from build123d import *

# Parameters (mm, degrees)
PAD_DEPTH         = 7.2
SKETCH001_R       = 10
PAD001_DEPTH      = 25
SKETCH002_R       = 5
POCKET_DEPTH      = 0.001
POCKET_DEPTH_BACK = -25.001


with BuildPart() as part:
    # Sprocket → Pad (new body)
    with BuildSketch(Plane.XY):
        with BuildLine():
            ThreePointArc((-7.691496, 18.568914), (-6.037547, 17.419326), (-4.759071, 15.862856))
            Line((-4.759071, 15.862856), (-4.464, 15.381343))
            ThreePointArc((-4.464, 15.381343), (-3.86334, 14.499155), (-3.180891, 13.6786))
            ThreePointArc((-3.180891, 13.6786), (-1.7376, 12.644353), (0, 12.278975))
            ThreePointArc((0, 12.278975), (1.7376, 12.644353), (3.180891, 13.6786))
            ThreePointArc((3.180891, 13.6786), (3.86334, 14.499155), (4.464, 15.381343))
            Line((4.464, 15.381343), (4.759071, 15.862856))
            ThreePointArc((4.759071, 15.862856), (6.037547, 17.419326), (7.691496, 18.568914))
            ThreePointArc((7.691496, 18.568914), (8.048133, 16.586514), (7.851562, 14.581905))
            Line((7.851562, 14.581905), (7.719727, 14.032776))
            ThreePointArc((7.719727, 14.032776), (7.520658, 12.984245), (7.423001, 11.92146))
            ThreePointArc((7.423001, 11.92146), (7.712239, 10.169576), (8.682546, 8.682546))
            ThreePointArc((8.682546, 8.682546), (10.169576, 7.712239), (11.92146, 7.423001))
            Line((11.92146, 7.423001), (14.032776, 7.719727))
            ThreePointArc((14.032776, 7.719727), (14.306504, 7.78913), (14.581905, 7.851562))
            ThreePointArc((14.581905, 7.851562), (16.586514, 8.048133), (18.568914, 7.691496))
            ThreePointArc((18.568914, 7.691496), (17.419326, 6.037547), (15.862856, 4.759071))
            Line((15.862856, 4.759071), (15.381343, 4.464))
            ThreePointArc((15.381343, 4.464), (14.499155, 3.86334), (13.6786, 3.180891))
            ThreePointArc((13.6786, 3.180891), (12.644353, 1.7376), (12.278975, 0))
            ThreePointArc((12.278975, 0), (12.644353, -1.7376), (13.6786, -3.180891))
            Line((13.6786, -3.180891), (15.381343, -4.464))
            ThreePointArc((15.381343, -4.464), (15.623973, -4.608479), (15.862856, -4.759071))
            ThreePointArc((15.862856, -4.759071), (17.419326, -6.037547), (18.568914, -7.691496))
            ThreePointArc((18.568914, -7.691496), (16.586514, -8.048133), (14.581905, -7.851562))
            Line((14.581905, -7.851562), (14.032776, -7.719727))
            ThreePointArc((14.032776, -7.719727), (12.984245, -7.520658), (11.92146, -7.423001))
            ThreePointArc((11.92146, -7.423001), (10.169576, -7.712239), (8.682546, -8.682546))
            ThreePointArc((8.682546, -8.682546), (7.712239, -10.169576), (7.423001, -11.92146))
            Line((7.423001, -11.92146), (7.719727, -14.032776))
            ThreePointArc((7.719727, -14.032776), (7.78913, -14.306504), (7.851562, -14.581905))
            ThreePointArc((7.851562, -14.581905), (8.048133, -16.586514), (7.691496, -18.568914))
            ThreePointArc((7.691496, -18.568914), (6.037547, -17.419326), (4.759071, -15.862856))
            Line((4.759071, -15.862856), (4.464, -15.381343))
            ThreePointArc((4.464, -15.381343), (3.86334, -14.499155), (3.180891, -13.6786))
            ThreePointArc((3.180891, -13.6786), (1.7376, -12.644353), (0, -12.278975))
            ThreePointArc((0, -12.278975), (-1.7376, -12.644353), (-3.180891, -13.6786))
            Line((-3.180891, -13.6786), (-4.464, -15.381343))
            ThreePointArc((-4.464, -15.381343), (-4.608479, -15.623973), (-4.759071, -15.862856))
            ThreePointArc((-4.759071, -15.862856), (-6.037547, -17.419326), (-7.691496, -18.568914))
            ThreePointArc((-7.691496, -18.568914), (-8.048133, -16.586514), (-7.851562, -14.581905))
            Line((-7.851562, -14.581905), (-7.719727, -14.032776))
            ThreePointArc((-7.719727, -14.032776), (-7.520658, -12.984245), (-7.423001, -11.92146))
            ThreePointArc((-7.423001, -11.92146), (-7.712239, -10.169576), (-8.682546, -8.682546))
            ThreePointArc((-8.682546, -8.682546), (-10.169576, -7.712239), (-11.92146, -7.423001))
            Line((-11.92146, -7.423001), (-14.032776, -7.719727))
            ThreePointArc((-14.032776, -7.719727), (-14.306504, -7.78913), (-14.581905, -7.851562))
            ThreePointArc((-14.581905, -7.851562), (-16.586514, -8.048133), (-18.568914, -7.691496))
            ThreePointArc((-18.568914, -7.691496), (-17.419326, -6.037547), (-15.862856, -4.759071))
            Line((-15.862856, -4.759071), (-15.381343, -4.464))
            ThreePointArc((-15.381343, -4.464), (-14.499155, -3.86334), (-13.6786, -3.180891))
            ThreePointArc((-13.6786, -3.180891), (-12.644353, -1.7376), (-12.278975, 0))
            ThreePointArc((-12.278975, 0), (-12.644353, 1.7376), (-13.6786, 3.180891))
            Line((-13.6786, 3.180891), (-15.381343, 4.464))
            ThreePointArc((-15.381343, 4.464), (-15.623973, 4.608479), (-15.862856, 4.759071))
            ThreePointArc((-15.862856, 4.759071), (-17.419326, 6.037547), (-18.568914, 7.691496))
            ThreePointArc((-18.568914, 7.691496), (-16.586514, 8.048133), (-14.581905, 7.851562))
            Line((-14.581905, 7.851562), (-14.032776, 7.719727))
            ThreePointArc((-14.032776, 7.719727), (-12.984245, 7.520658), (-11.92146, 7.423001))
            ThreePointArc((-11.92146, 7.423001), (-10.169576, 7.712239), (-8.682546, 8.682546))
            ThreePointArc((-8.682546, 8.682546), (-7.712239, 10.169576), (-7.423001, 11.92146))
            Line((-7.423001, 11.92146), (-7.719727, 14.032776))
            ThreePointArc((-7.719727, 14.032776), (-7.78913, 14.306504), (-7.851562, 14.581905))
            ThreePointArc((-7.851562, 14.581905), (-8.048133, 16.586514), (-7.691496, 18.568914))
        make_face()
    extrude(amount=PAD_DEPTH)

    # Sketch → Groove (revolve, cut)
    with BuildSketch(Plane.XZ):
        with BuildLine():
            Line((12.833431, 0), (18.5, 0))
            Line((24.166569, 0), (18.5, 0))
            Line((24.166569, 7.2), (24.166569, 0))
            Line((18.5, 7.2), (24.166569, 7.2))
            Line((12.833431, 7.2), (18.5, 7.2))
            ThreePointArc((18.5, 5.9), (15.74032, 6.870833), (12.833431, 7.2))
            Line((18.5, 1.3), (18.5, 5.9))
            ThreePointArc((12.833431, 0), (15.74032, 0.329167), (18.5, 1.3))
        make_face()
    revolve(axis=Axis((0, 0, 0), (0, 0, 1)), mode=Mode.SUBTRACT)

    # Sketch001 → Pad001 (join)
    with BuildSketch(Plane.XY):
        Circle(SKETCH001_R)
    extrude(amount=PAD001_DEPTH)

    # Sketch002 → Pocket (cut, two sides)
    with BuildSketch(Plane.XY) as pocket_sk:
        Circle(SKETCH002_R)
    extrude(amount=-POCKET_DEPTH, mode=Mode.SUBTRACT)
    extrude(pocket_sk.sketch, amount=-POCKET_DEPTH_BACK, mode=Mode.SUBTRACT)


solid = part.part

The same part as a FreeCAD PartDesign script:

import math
import FreeCAD as App
import Part
import Sketcher

doc = App.newDocument("Part")
params = doc.addObject("Spreadsheet::Sheet", "Params")
for row, (alias, value) in enumerate([
    ("pad1_length", "7.2 mm"),
    ("sketch2_height", "7.2 mm"),
    ("sketch2_height2", "4.6 mm"),
    ("groove_angle", "360 deg"),
    ("sketch3_diameter", "20 mm"),
    ("pad2_length", "25 mm"),
    ("sketch4_diameter", "10 mm"),
], start=1):
    params.set(f"A{row}", alias)
    params.set(f"B{row}", "=" + value)
    params.setAlias(f"B{row}", alias)

body = doc.addObject("PartDesign::Body", "Body")

sketch1 = body.newObject("Sketcher::SketchObject", "Sketch")
sketch1.AttachmentSupport = (doc.getObject("XY_Plane"), [""])
sketch1.MapMode = "FlatFace"
sketch1.addGeometry([
    Part.ArcOfCircle(Part.Circle(App.Vector(-11.007099, 12.034061, 0), App.Vector(0, 0, 1), 7.327859), math.radians(31.499988), math.radians(63.098027)),
    Part.ArcOfCircle(Part.Circle(App.Vector(-0.726167, 16.29256, 0), App.Vector(0, 0, 1), 7.327864), math.radians(161.901981), math.radians(193.499994)),
    Part.ArcOfCircle(Part.Circle(App.Vector(3.027006, 16.903244, 0), App.Vector(0, 0, 1), 11.123482), math.radians(-167.954515), math.radians(-165.045329)),
    Part.LineSegment(App.Vector(-7.719727, 14.032776, 0), App.Vector(-7.423001, 11.92146, 0)),
    Part.ArcOfCircle(Part.Circle(App.Vector(-11.733276, 11.733272, 0), App.Vector(0, 0, 1), 4.314381), math.radians(-44.999965), math.radians(2.499958)),
    Part.ArcOfCircle(Part.Circle(App.Vector(-11.733272, 11.733276, 0), App.Vector(0, 0, 1), 4.314381), math.radians(-92.499958), math.radians(-45.000035)),
    Part.ArcOfCircle(Part.Circle(App.Vector(-11.436285, 18.534963, 0), App.Vector(0, 0, 1), 11.122549), math.radians(-103.499912), math.radians(-92.500082)),
    Part.LineSegment(App.Vector(-14.032776, 7.719727, 0), App.Vector(-14.581905, 7.851562, 0)),
    Part.ArcOfCircle(Part.Circle(App.Vector(-16.29256, 0.726167, 0), App.Vector(0, 0, 1), 7.327864), math.radians(76.500006), math.radians(108.098019)),
    Part.ArcOfCircle(Part.Circle(App.Vector(-12.034061, 11.007099, 0), App.Vector(0, 0, 1), 7.327859), math.radians(-153.098027), math.radians(-121.499988)),
    Part.ArcOfCircle(Part.Circle(App.Vector(-9.812852, 14.091384, 0), App.Vector(0, 0, 1), 11.121808), math.radians(-122.954762), math.radians(-120.045144)),
    Part.LineSegment(App.Vector(-15.381343, 4.464, 0), App.Vector(-13.6786, 3.180891, 0)),
    Part.ArcOfCircle(Part.Circle(App.Vector(-16.593353, -0.000001, 0), App.Vector(0, 0, 1), 4.314378), math.radians(0.000011), math.radians(47.499973)),
    Part.ArcOfCircle(Part.Circle(App.Vector(-16.593353, 0.000001, 0), App.Vector(0, 0, 1), 4.314378), math.radians(-47.499973), math.radians(-0.000011)),
    Part.ArcOfCircle(Part.Circle(App.Vector(-21.192716, 5.019314, 0), App.Vector(0, 0, 1), 11.122288), math.radians(-58.500042), math.radians(-47.499953)),
    Part.LineSegment(App.Vector(-15.381343, -4.464, 0), App.Vector(-15.862856, -4.759071, 0)),
    Part.ArcOfCircle(Part.Circle(App.Vector(-12.034061, -11.007099, 0), App.Vector(0, 0, 1), 7.327859), math.radians(121.499988), math.radians(153.098027)),
    Part.ArcOfCircle(Part.Circle(App.Vector(-16.29256, -0.726167, 0), App.Vector(0, 0, 1), 7.327864), math.radians(-108.098019), math.radians(-76.500006)),
    Part.ArcOfCircle(Part.Circle(App.Vector(-16.903244, 3.027006, 0), App.Vector(0, 0, 1), 11.123482), math.radians(-77.954515), math.radians(-75.045329)),
    Part.LineSegment(App.Vector(-14.032776, -7.719727, 0), App.Vector(-11.92146, -7.423001, 0)),
    Part.ArcOfCircle(Part.Circle(App.Vector(-11.733272, -11.733276, 0), App.Vector(0, 0, 1), 4.314381), math.radians(45.000035), math.radians(92.499958)),
    Part.ArcOfCircle(Part.Circle(App.Vector(-11.733276, -11.733272, 0), App.Vector(0, 0, 1), 4.314381), math.radians(-2.499958), math.radians(44.999965)),
    Part.ArcOfCircle(Part.Circle(App.Vector(-18.534963, -11.436285, 0), App.Vector(0, 0, 1), 11.122549), math.radians(-13.499912), math.radians(-2.500082)),
    Part.LineSegment(App.Vector(-7.719727, -14.032776, 0), App.Vector(-7.851562, -14.581905, 0)),
    Part.ArcOfCircle(Part.Circle(App.Vector(-0.726167, -16.29256, 0), App.Vector(0, 0, 1), 7.327864), math.radians(166.500006), math.radians(198.098019)),
    Part.ArcOfCircle(Part.Circle(App.Vector(-11.007099, -12.034061, 0), App.Vector(0, 0, 1), 7.327859), math.radians(-63.098027), math.radians(-31.499988)),
    Part.ArcOfCircle(Part.Circle(App.Vector(-14.091384, -9.812852, 0), App.Vector(0, 0, 1), 11.121808), math.radians(-32.954762), math.radians(-30.045144)),
    Part.LineSegment(App.Vector(-4.464, -15.381343, 0), App.Vector(-3.180891, -13.6786, 0)),
    Part.ArcOfCircle(Part.Circle(App.Vector(0.000001, -16.593353, 0), App.Vector(0, 0, 1), 4.314378), math.radians(90.000011), math.radians(137.499973)),
    Part.ArcOfCircle(Part.Circle(App.Vector(-0.000001, -16.593353, 0), App.Vector(0, 0, 1), 4.314378), math.radians(42.500027), math.radians(89.999989)),
    Part.ArcOfCircle(Part.Circle(App.Vector(-5.019314, -21.192716, 0), App.Vector(0, 0, 1), 11.122288), math.radians(31.499958), math.radians(42.500047)),
    Part.LineSegment(App.Vector(4.464, -15.381343, 0), App.Vector(4.759071, -15.862856, 0)),
    Part.ArcOfCircle(Part.Circle(App.Vector(11.007099, -12.034061, 0), App.Vector(0, 0, 1), 7.327859), math.radians(-148.500012), math.radians(-116.901973)),
    Part.ArcOfCircle(Part.Circle(App.Vector(0.726167, -16.29256, 0), App.Vector(0, 0, 1), 7.327864), math.radians(-18.098019), math.radians(13.499994)),
    Part.ArcOfCircle(Part.Circle(App.Vector(-3.027006, -16.903244, 0), App.Vector(0, 0, 1), 11.123482), math.radians(12.045485), math.radians(14.954671)),
    Part.LineSegment(App.Vector(7.719727, -14.032776, 0), App.Vector(7.423001, -11.92146, 0)),
    Part.ArcOfCircle(Part.Circle(App.Vector(11.733276, -11.733272, 0), App.Vector(0, 0, 1), 4.314381), math.radians(135.000035), math.radians(182.499958)),
    Part.ArcOfCircle(Part.Circle(App.Vector(11.733272, -11.733276, 0), App.Vector(0, 0, 1), 4.314381), math.radians(87.500042), math.radians(134.999965)),
    Part.ArcOfCircle(Part.Circle(App.Vector(11.436285, -18.534963, 0), App.Vector(0, 0, 1), 11.122549), math.radians(76.500088), math.radians(87.499918)),
    Part.LineSegment(App.Vector(14.032776, -7.719727, 0), App.Vector(14.581905, -7.851562, 0)),
    Part.ArcOfCircle(Part.Circle(App.Vector(16.29256, -0.726167, 0), App.Vector(0, 0, 1), 7.327864), math.radians(-103.499994), math.radians(-71.901981)),
    Part.ArcOfCircle(Part.Circle(App.Vector(12.034061, -11.007099, 0), App.Vector(0, 0, 1), 7.327859), math.radians(26.901973), math.radians(58.500012)),
    Part.ArcOfCircle(Part.Circle(App.Vector(9.812852, -14.091384, 0), App.Vector(0, 0, 1), 11.121808), math.radians(57.045238), math.radians(59.954856)),
    Part.LineSegment(App.Vector(15.381343, -4.464, 0), App.Vector(13.6786, -3.180891, 0)),
    Part.ArcOfCircle(Part.Circle(App.Vector(16.593353, 0.000001, 0), App.Vector(0, 0, 1), 4.314378), math.radians(-179.999989), math.radians(-132.500027)),
    Part.ArcOfCircle(Part.Circle(App.Vector(16.593353, -0.000001, 0), App.Vector(0, 0, 1), 4.314378), math.radians(132.500027), math.radians(179.999989)),
    Part.ArcOfCircle(Part.Circle(App.Vector(21.192716, -5.019314, 0), App.Vector(0, 0, 1), 11.122288), math.radians(121.499958), math.radians(132.500047)),
    Part.LineSegment(App.Vector(15.381343, 4.464, 0), App.Vector(15.862856, 4.759071, 0)),
    Part.ArcOfCircle(Part.Circle(App.Vector(12.034061, 11.007099, 0), App.Vector(0, 0, 1), 7.327859), math.radians(-58.500012), math.radians(-26.901973)),
    Part.ArcOfCircle(Part.Circle(App.Vector(16.29256, 0.726167, 0), App.Vector(0, 0, 1), 7.327864), math.radians(71.901981), math.radians(103.499994)),
    Part.ArcOfCircle(Part.Circle(App.Vector(16.903244, -3.027006, 0), App.Vector(0, 0, 1), 11.123482), math.radians(102.045485), math.radians(104.954671)),
    Part.LineSegment(App.Vector(14.032776, 7.719727, 0), App.Vector(11.92146, 7.423001, 0)),
    Part.ArcOfCircle(Part.Circle(App.Vector(11.733272, 11.733276, 0), App.Vector(0, 0, 1), 4.314381), math.radians(-134.999965), math.radians(-87.500042)),
    Part.ArcOfCircle(Part.Circle(App.Vector(11.733276, 11.733272, 0), App.Vector(0, 0, 1), 4.314381), math.radians(177.500042), math.radians(224.999965)),
    Part.ArcOfCircle(Part.Circle(App.Vector(18.534963, 11.436285, 0), App.Vector(0, 0, 1), 11.122549), math.radians(166.500088), math.radians(177.499918)),
    Part.LineSegment(App.Vector(7.719727, 14.032776, 0), App.Vector(7.851562, 14.581905, 0)),
    Part.ArcOfCircle(Part.Circle(App.Vector(0.726167, 16.29256, 0), App.Vector(0, 0, 1), 7.327864), math.radians(-13.499994), math.radians(18.098019)),
    Part.ArcOfCircle(Part.Circle(App.Vector(11.007099, 12.034061, 0), App.Vector(0, 0, 1), 7.327859), math.radians(116.901973), math.radians(148.500012)),
    Part.LineSegment(App.Vector(4.759071, 15.862856, 0), App.Vector(4.464, 15.381343, 0)),
    Part.ArcOfCircle(Part.Circle(App.Vector(-5.019314, 21.192716, 0), App.Vector(0, 0, 1), 11.122288), math.radians(-42.500047), math.radians(-31.499958)),
    Part.ArcOfCircle(Part.Circle(App.Vector(-0.000001, 16.593353, 0), App.Vector(0, 0, 1), 4.314378), math.radians(-89.999989), math.radians(-42.500027)),
    Part.ArcOfCircle(Part.Circle(App.Vector(0.000001, 16.593353, 0), App.Vector(0, 0, 1), 4.314378), math.radians(-137.499973), math.radians(-90.000011)),
    Part.ArcOfCircle(Part.Circle(App.Vector(5.019314, 21.192716, 0), App.Vector(0, 0, 1), 11.122288), math.radians(-148.500042), math.radians(-137.499953)),
    Part.LineSegment(App.Vector(-4.464, 15.381343, 0), App.Vector(-4.759071, 15.862856, 0)),
], False)
sketch1.addConstraint([
    Sketcher.Constraint("Coincident", 0, 2, 1, 1),
    Sketcher.Constraint("Coincident", 1, 2, 2, 1),
    Sketcher.Constraint("Coincident", 2, 2, 3, 1),
    Sketcher.Constraint("Coincident", 3, 2, 4, 2),
    Sketcher.Constraint("Coincident", 4, 1, 5, 2),
    Sketcher.Constraint("Coincident", 5, 1, 6, 2),
    Sketcher.Constraint("Coincident", 6, 1, 7, 1),
    Sketcher.Constraint("Coincident", 7, 2, 8, 1),
    Sketcher.Constraint("Coincident", 8, 2, 9, 1),
    Sketcher.Constraint("Coincident", 9, 2, 10, 1),
    Sketcher.Constraint("Coincident", 10, 2, 11, 1),
    Sketcher.Constraint("Coincident", 11, 2, 12, 2),
    Sketcher.Constraint("Coincident", 12, 1, 13, 2),
    Sketcher.Constraint("Coincident", 13, 1, 14, 2),
    Sketcher.Constraint("Coincident", 14, 1, 15, 1),
    Sketcher.Constraint("Coincident", 15, 2, 16, 1),
    Sketcher.Constraint("Coincident", 16, 2, 17, 1),
    Sketcher.Constraint("Coincident", 17, 2, 18, 1),
    Sketcher.Constraint("Coincident", 18, 2, 19, 1),
    Sketcher.Constraint("Coincident", 19, 2, 20, 2),
    Sketcher.Constraint("Coincident", 20, 1, 21, 2),
    Sketcher.Constraint("Coincident", 21, 1, 22, 2),
    Sketcher.Constraint("Coincident", 22, 1, 23, 1),
    Sketcher.Constraint("Coincident", 23, 2, 24, 1),
    Sketcher.Constraint("Coincident", 24, 2, 25, 1),
    Sketcher.Constraint("Coincident", 25, 2, 26, 1),
    Sketcher.Constraint("Coincident", 26, 2, 27, 1),
    Sketcher.Constraint("Coincident", 27, 2, 28, 2),
    Sketcher.Constraint("Coincident", 28, 1, 29, 2),
    Sketcher.Constraint("Coincident", 29, 1, 30, 2),
    Sketcher.Constraint("Coincident", 30, 1, 31, 1),
    Sketcher.Constraint("Coincident", 31, 2, 32, 1),
    Sketcher.Constraint("Coincident", 32, 2, 33, 1),
    Sketcher.Constraint("Coincident", 33, 2, 34, 1),
    Sketcher.Constraint("Coincident", 34, 2, 35, 1),
    Sketcher.Constraint("Coincident", 35, 2, 36, 2),
    Sketcher.Constraint("Coincident", 36, 1, 37, 2),
    Sketcher.Constraint("Coincident", 37, 1, 38, 2),
    Sketcher.Constraint("Coincident", 38, 1, 39, 1),
    Sketcher.Constraint("Coincident", 39, 2, 40, 1),
    Sketcher.Constraint("Coincident", 40, 2, 41, 1),
    Sketcher.Constraint("Coincident", 41, 2, 42, 1),
    Sketcher.Constraint("Coincident", 42, 2, 43, 1),
    Sketcher.Constraint("Coincident", 43, 2, 44, 2),
    Sketcher.Constraint("Coincident", 44, 1, 45, 2),
    Sketcher.Constraint("Coincident", 45, 1, 46, 2),
    Sketcher.Constraint("Coincident", 46, 1, 47, 1),
    Sketcher.Constraint("Coincident", 47, 2, 48, 1),
    Sketcher.Constraint("Coincident", 48, 2, 49, 1),
    Sketcher.Constraint("Coincident", 49, 2, 50, 1),
    Sketcher.Constraint("Coincident", 50, 2, 51, 1),
    Sketcher.Constraint("Coincident", 51, 2, 52, 2),
    Sketcher.Constraint("Coincident", 52, 1, 53, 2),
    Sketcher.Constraint("Coincident", 53, 1, 54, 2),
    Sketcher.Constraint("Coincident", 54, 1, 55, 1),
    Sketcher.Constraint("Coincident", 55, 2, 56, 1),
    Sketcher.Constraint("Coincident", 56, 2, 57, 1),
    Sketcher.Constraint("Coincident", 57, 2, 58, 1),
    Sketcher.Constraint("Coincident", 58, 2, 59, 2),
    Sketcher.Constraint("Coincident", 59, 1, 60, 2),
    Sketcher.Constraint("Coincident", 60, 1, 61, 2),
    Sketcher.Constraint("Coincident", 61, 1, 62, 2),
    Sketcher.Constraint("Coincident", 62, 1, 63, 1),
    Sketcher.Constraint("Coincident", 63, 2, 0, 1),
    Sketcher.Constraint("Coincident", 5, 3, 4, 3),
    Sketcher.Constraint("Coincident", 13, 3, 12, 3),
    Sketcher.Constraint("Coincident", 21, 3, 20, 3),
    Sketcher.Constraint("Coincident", 29, 3, 28, 3),
    Sketcher.Constraint("Coincident", 37, 3, 36, 3),
    Sketcher.Constraint("Coincident", 45, 3, 44, 3),
    Sketcher.Constraint("Coincident", 53, 3, 52, 3),
    Sketcher.Constraint("Coincident", 61, 3, 60, 3),
    Sketcher.Constraint("PointOnObject", 12, 3, -1),
    Sketcher.Constraint("PointOnObject", 28, 3, -2),
    Sketcher.Constraint("PointOnObject", 44, 3, -1),
    Sketcher.Constraint("PointOnObject", 60, 3, -2),
    Sketcher.Constraint("PointOnObject", 12, 1, -1),
    Sketcher.Constraint("PointOnObject", 28, 1, -2),
    Sketcher.Constraint("PointOnObject", 44, 1, -1),
    Sketcher.Constraint("PointOnObject", 60, 1, -2),
    Sketcher.Constraint("Radius", 0, 7.327859),
    Sketcher.Constraint("Radius", 4, 4.314381),
    Sketcher.Constraint("Radius", 6, 11.122549),
    Sketcher.Constraint("Radius", 9, 7.327859),
    Sketcher.Constraint("Radius", 10, 11.121808),
    Sketcher.Constraint("Radius", 12, 4.314378),
    Sketcher.Constraint("Radius", 14, 11.122288),
    Sketcher.Constraint("Radius", 16, 7.327859),
    Sketcher.Constraint("Radius", 20, 4.314381),
    Sketcher.Constraint("Radius", 22, 11.122549),
    Sketcher.Constraint("Radius", 25, 7.327859),
    Sketcher.Constraint("Radius", 26, 11.121808),
    Sketcher.Constraint("Radius", 28, 4.314378),
    Sketcher.Constraint("Radius", 30, 11.122288),
    Sketcher.Constraint("Radius", 32, 7.327859),
    Sketcher.Constraint("Radius", 36, 4.314381),
    Sketcher.Constraint("Radius", 38, 11.122549),
    Sketcher.Constraint("Radius", 41, 7.327859),
    Sketcher.Constraint("Radius", 42, 11.121808),
    Sketcher.Constraint("Radius", 44, 4.314378),
    Sketcher.Constraint("Radius", 46, 11.122288),
    Sketcher.Constraint("Radius", 48, 7.327859),
    Sketcher.Constraint("Radius", 52, 4.314381),
    Sketcher.Constraint("Radius", 54, 11.122549),
    Sketcher.Constraint("Radius", 57, 7.327859),
    Sketcher.Constraint("Radius", 59, 11.122288),
    Sketcher.Constraint("Radius", 60, 4.314378),
    Sketcher.Constraint("Radius", 62, 11.122288),
    Sketcher.Constraint("DistanceX", 3, 2, -1, 1, 7.423001),
    Sketcher.Constraint("DistanceY", -1, 1, 5, 1, 7.423001),
    Sketcher.Constraint("DistanceY", -1, 1, 10, 2, 4.464),
    Sketcher.Constraint("DistanceY", 14, 1, -1, 1, 4.464),
    Sketcher.Constraint("DistanceY", 19, 2, -1, 1, 7.423001),
    Sketcher.Constraint("DistanceX", 21, 1, -1, 1, 7.423001),
    Sketcher.Constraint("DistanceX", 26, 2, -1, 1, 4.464),
    Sketcher.Constraint("DistanceX", -1, 1, 30, 1, 4.464),
    Sketcher.Constraint("DistanceX", -1, 1, 35, 2, 7.423001),
    Sketcher.Constraint("DistanceY", 37, 1, -1, 1, 7.423001),
    Sketcher.Constraint("DistanceY", 42, 2, -1, 1, 4.464),
    Sketcher.Constraint("DistanceY", -1, 1, 46, 1, 4.464),
    Sketcher.Constraint("DistanceY", -1, 1, 51, 2, 7.423001),
    Sketcher.Constraint("DistanceX", -1, 1, 53, 1, 7.423001),
    Sketcher.Constraint("DistanceX", -1, 1, 58, 2, 4.464),
    Sketcher.Constraint("DistanceX", 62, 1, -1, 1, 4.464),
    Sketcher.Constraint("Radius", 1, 7.327864),
    Sketcher.Constraint("Radius", 2, 11.123482),
    Sketcher.Constraint("Radius", 8, 7.327864),
    Sketcher.Constraint("Radius", 17, 7.327864),
    Sketcher.Constraint("Radius", 18, 11.123482),
    Sketcher.Constraint("Radius", 24, 7.327864),
    Sketcher.Constraint("Radius", 33, 7.327864),
    Sketcher.Constraint("Radius", 34, 11.123482),
    Sketcher.Constraint("Radius", 40, 7.327864),
    Sketcher.Constraint("Radius", 49, 7.327864),
    Sketcher.Constraint("Radius", 50, 11.123482),
    Sketcher.Constraint("Radius", 56, 7.327864),
    Sketcher.Constraint("DistanceX", 0, 3, -1, 1, 11.007099),
    Sketcher.Constraint("DistanceY", -1, 1, 9, 3, 11.007099),
    Sketcher.Constraint("DistanceY", 16, 3, -1, 1, 11.007099),
    Sketcher.Constraint("DistanceX", 25, 3, -1, 1, 11.007099),
    Sketcher.Constraint("DistanceX", -1, 1, 32, 3, 11.007099),
    Sketcher.Constraint("DistanceY", 41, 3, -1, 1, 11.007099),
    Sketcher.Constraint("DistanceY", -1, 1, 48, 3, 11.007099),
    Sketcher.Constraint("DistanceX", -1, 1, 57, 3, 11.007099),
    Sketcher.Constraint("DistanceX", 11, 2, -1, 1, 13.6786),
    Sketcher.Constraint("DistanceX", 13, 1, -1, 1, 13.6786),
    Sketcher.Constraint("DistanceY", 27, 2, -1, 1, 13.6786),
    Sketcher.Constraint("DistanceY", 29, 1, -1, 1, 13.6786),
    Sketcher.Constraint("DistanceX", -1, 1, 43, 2, 13.6786),
    Sketcher.Constraint("DistanceX", -1, 1, 45, 1, 13.6786),
    Sketcher.Constraint("DistanceY", -1, 1, 59, 1, 13.6786),
    Sketcher.Constraint("DistanceY", -1, 1, 61, 1, 13.6786),
    Sketcher.Constraint("Distance", 15, 0.564731),
    Sketcher.Constraint("Distance", 31, 0.564731),
    Sketcher.Constraint("Distance", 47, 0.564731),
    Sketcher.Constraint("Distance", 58, 0.564731),
    Sketcher.Constraint("Distance", 63, 0.564731),
    Sketcher.Constraint("DistanceY", -1, 1, 0, 3, 12.034061),
    Sketcher.Constraint("DistanceY", -1, 1, 1, 3, 16.29256),
    Sketcher.Constraint("DistanceX", 8, 3, -1, 1, 16.29256),
    Sketcher.Constraint("DistanceX", 9, 3, -1, 1, 12.034061),
    Sketcher.Constraint("DistanceX", 10, 3, -1, 1, 9.812852),
    Sketcher.Constraint("DistanceX", 16, 3, -1, 1, 12.034061),
    Sketcher.Constraint("DistanceX", 17, 3, -1, 1, 16.29256),
    Sketcher.Constraint("DistanceY", 24, 3, -1, 1, 16.29256),
    Sketcher.Constraint("DistanceY", 25, 3, -1, 1, 12.034061),
    Sketcher.Constraint("DistanceY", 26, 3, -1, 1, 9.812852),
    Sketcher.Constraint("DistanceY", 32, 3, -1, 1, 12.034061),
    Sketcher.Constraint("DistanceY", 33, 3, -1, 1, 16.29256),
    Sketcher.Constraint("DistanceX", -1, 1, 40, 3, 16.29256),
    Sketcher.Constraint("DistanceX", -1, 1, 41, 3, 12.034061),
    Sketcher.Constraint("DistanceX", -1, 1, 42, 3, 9.812852),
    Sketcher.Constraint("DistanceX", -1, 1, 48, 3, 12.034061),
    Sketcher.Constraint("DistanceX", -1, 1, 49, 3, 16.29256),
    Sketcher.Constraint("DistanceY", -1, 1, 56, 3, 16.29256),
    Sketcher.Constraint("DistanceY", -1, 1, 57, 3, 12.034061),
    Sketcher.Constraint("DistanceX", 1, 2, -1, 1, 7.851562),
    Sketcher.Constraint("DistanceY", -1, 1, 3, 2, 11.92146),
    Sketcher.Constraint("DistanceX", 5, 1, -1, 1, 11.92146),
    Sketcher.Constraint("DistanceY", -1, 1, 9, 2, 4.759071),
    Sketcher.Constraint("DistanceY", -1, 1, 11, 2, 3.180891),
    Sketcher.Constraint("DistanceY", 15, 2, -1, 1, 4.759071),
    Sketcher.Constraint("DistanceY", 17, 2, -1, 1, 7.851562),
    Sketcher.Constraint("DistanceX", 19, 2, -1, 1, 11.92146),
    Sketcher.Constraint("DistanceY", 21, 1, -1, 1, 11.92146),
    Sketcher.Constraint("DistanceX", 25, 2, -1, 1, 4.759071),
    Sketcher.Constraint("DistanceX", 27, 2, -1, 1, 3.180891),
    Sketcher.Constraint("DistanceX", -1, 1, 31, 2, 4.759071),
    Sketcher.Constraint("DistanceX", -1, 1, 33, 2, 7.851562),
    Sketcher.Constraint("DistanceY", 35, 2, -1, 1, 11.92146),
    Sketcher.Constraint("DistanceX", -1, 1, 37, 1, 11.92146),
    Sketcher.Constraint("DistanceY", 41, 2, -1, 1, 4.759071),
    Sketcher.Constraint("DistanceY", 43, 2, -1, 1, 3.180891),
    Sketcher.Constraint("DistanceY", -1, 1, 47, 2, 4.759071),
    Sketcher.Constraint("DistanceY", -1, 1, 49, 2, 7.851562),
    Sketcher.Constraint("DistanceX", -1, 1, 51, 2, 11.92146),
    Sketcher.Constraint("DistanceY", -1, 1, 53, 1, 11.92146),
    Sketcher.Constraint("DistanceX", -1, 1, 57, 2, 4.759071),
    Sketcher.Constraint("DistanceX", -1, 1, 59, 1, 3.180891),
    Sketcher.Constraint("DistanceX", 63, 2, -1, 1, 4.759071),
    Sketcher.Constraint("Distance", 3, 2.132065),
    Sketcher.Constraint("Distance", 7, 0.564733),
    Sketcher.Constraint("Distance", 19, 2.132065),
    Sketcher.Constraint("Distance", 23, 0.564733),
    Sketcher.Constraint("Distance", 35, 2.132065),
    Sketcher.Constraint("Distance", 39, 0.564733),
    Sketcher.Constraint("Distance", 51, 2.132065),
    Sketcher.Constraint("Distance", 55, 0.564733),
    Sketcher.Constraint("DistanceX", 1, 3, -1, 1, 0.726167),
    Sketcher.Constraint("DistanceX", -1, 1, 2, 3, 3.027006),
    Sketcher.Constraint("DistanceX", 6, 3, -1, 1, 11.436285),
    Sketcher.Constraint("DistanceY", -1, 1, 8, 3, 0.726167),
    Sketcher.Constraint("DistanceY", 17, 3, -1, 1, 0.726167),
    Sketcher.Constraint("DistanceX", 18, 3, -1, 1, 16.903244),
    Sketcher.Constraint("DistanceX", 22, 3, -1, 1, 18.534963),
    Sketcher.Constraint("DistanceX", 24, 3, -1, 1, 0.726167),
    Sketcher.Constraint("DistanceX", -1, 1, 33, 3, 0.726167),
    Sketcher.Constraint("DistanceX", 34, 3, -1, 1, 3.027006),
    Sketcher.Constraint("DistanceX", -1, 1, 38, 3, 11.436285),
    Sketcher.Constraint("DistanceY", 40, 3, -1, 1, 0.726167),
    Sketcher.Constraint("DistanceY", -1, 1, 49, 3, 0.726167),
    Sketcher.Constraint("DistanceX", -1, 1, 50, 3, 16.903244),
    Sketcher.Constraint("DistanceX", -1, 1, 54, 3, 18.534963),
    Sketcher.Constraint("DistanceX", -1, 1, 56, 3, 0.726167),
    Sketcher.Constraint("DistanceX", 4, 1, -1, 1, 8.682546),
    Sketcher.Constraint("DistanceX", 6, 1, -1, 1, 14.032776),
    Sketcher.Constraint("DistanceX", 20, 1, -1, 1, 8.682546),
    Sketcher.Constraint("DistanceX", 22, 1, -1, 1, 7.719727),
    Sketcher.Constraint("DistanceX", -1, 1, 36, 1, 8.682546),
    Sketcher.Constraint("DistanceX", -1, 1, 38, 1, 14.032776),
    Sketcher.Constraint("DistanceX", -1, 1, 52, 1, 8.682546),
    Sketcher.Constraint("DistanceX", -1, 1, 54, 1, 7.719727),
])
pad1 = body.newObject("PartDesign::Pad", "Pad")
pad1.Profile = sketch1
pad1.setExpression("Length", "Params.pad1_length")

sketch2 = body.newObject("Sketcher::SketchObject", "Sketch001")
sketch2.AttachmentSupport = (doc.getObject("XZ_Plane"), [""])
sketch2.MapMode = "FlatFace"
sketch2.addGeometry([
    Part.LineSegment(App.Vector(12.833431, 0, 0), App.Vector(24.166569, 0, 0)),
    Part.LineSegment(App.Vector(24.166569, 0, 0), App.Vector(24.166569, 7.2, 0)),
    Part.LineSegment(App.Vector(24.166569, 7.2, 0), App.Vector(12.833431, 7.2, 0)),
    Part.ArcOfCircle(Part.Circle(App.Vector(12.833435, -5.799985, 0), App.Vector(0, 0, 1), 12.999985), math.radians(64.158052), math.radians(90.000017)),
    Part.LineSegment(App.Vector(18.5, 5.9, 0), App.Vector(18.5, 1.3, 0)),
    Part.ArcOfCircle(Part.Circle(App.Vector(12.833435, 12.999985, 0), App.Vector(0, 0, 1), 12.999985), math.radians(-90.000017), math.radians(-64.158052)),
], False)
sketch2.addConstraint([
    Sketcher.Constraint("Coincident", 0, 2, 1, 1),
    Sketcher.Constraint("Coincident", 1, 2, 2, 1),
    Sketcher.Constraint("Tangent", 2, 2, 3, 2),
    Sketcher.Constraint("Coincident", 3, 1, 4, 1),
    Sketcher.Constraint("Coincident", 4, 2, 5, 2),
    Sketcher.Constraint("Tangent", 5, 1, 0, 1),
    Sketcher.Constraint("Horizontal", 0),
    Sketcher.Constraint("Vertical", 1),
    Sketcher.Constraint("Horizontal", 2),
    Sketcher.Constraint("Vertical", 4),
    Sketcher.Constraint("Equal", 3, 5),
    Sketcher.Constraint("PointOnObject", 0, 2, -1),
    Sketcher.Constraint("Vertical", 3, 3, 5, 3),
    Sketcher.Constraint("DistanceY", 1, 1, 1, 2, 7.2),
    Sketcher.Constraint("DistanceY", 4, 2, 4, 1, 4.6),
    Sketcher.Constraint("DistanceX", -1, 1, 3, 1, 18.5),
    Sketcher.Constraint("Radius", 3, 12.999985),
    Sketcher.Constraint("DistanceX", 0, 1, 0, 2, 11.333138),
])
sketch2.setExpression("Constraints[13]", "Params.sketch2_height")
sketch2.setExpression("Constraints[14]", "Params.sketch2_height2")
groove = body.newObject("PartDesign::Groove", "Groove")
groove.Profile = sketch2
groove.ReferenceAxis = (sketch2, ["V_Axis"])
groove.setExpression("Angle", "Params.groove_angle")

sketch3 = body.newObject("Sketcher::SketchObject", "Sketch002")
sketch3.AttachmentSupport = (doc.getObject("XY_Plane"), [""])
sketch3.MapMode = "FlatFace"
sketch3.addGeometry(Part.Circle(App.Vector(0, 0, 0), App.Vector(0, 0, 1), 10), False)
sketch3.addConstraint([
    Sketcher.Constraint("Coincident", 0, 3, -1, 1),
    Sketcher.Constraint("Diameter", 0, 20.0),
])
sketch3.setExpression("Constraints[1]", "Params.sketch3_diameter")
pad2 = body.newObject("PartDesign::Pad", "Pad001")
pad2.Profile = sketch3
pad2.setExpression("Length", "Params.pad2_length")

sketch4 = body.newObject("Sketcher::SketchObject", "Sketch003")
sketch4.AttachmentSupport = (doc.getObject("XY_Plane"), [""])
sketch4.MapMode = "FlatFace"
sketch4.addGeometry(Part.Circle(App.Vector(0, 0, 0), App.Vector(0, 0, 1), 5), False)
sketch4.addConstraint([
    Sketcher.Constraint("Coincident", 0, 3, -1, 1),
    Sketcher.Constraint("Diameter", 0, 10.0),
])
sketch4.setExpression("Constraints[1]", "Params.sketch4_diameter")
pocket1 = body.newObject("PartDesign::Pocket", "Pocket")
pocket1.Profile = sketch4
pocket1.Type = "ThroughAll"
pocket1.Midplane = True

doc.recompute()
